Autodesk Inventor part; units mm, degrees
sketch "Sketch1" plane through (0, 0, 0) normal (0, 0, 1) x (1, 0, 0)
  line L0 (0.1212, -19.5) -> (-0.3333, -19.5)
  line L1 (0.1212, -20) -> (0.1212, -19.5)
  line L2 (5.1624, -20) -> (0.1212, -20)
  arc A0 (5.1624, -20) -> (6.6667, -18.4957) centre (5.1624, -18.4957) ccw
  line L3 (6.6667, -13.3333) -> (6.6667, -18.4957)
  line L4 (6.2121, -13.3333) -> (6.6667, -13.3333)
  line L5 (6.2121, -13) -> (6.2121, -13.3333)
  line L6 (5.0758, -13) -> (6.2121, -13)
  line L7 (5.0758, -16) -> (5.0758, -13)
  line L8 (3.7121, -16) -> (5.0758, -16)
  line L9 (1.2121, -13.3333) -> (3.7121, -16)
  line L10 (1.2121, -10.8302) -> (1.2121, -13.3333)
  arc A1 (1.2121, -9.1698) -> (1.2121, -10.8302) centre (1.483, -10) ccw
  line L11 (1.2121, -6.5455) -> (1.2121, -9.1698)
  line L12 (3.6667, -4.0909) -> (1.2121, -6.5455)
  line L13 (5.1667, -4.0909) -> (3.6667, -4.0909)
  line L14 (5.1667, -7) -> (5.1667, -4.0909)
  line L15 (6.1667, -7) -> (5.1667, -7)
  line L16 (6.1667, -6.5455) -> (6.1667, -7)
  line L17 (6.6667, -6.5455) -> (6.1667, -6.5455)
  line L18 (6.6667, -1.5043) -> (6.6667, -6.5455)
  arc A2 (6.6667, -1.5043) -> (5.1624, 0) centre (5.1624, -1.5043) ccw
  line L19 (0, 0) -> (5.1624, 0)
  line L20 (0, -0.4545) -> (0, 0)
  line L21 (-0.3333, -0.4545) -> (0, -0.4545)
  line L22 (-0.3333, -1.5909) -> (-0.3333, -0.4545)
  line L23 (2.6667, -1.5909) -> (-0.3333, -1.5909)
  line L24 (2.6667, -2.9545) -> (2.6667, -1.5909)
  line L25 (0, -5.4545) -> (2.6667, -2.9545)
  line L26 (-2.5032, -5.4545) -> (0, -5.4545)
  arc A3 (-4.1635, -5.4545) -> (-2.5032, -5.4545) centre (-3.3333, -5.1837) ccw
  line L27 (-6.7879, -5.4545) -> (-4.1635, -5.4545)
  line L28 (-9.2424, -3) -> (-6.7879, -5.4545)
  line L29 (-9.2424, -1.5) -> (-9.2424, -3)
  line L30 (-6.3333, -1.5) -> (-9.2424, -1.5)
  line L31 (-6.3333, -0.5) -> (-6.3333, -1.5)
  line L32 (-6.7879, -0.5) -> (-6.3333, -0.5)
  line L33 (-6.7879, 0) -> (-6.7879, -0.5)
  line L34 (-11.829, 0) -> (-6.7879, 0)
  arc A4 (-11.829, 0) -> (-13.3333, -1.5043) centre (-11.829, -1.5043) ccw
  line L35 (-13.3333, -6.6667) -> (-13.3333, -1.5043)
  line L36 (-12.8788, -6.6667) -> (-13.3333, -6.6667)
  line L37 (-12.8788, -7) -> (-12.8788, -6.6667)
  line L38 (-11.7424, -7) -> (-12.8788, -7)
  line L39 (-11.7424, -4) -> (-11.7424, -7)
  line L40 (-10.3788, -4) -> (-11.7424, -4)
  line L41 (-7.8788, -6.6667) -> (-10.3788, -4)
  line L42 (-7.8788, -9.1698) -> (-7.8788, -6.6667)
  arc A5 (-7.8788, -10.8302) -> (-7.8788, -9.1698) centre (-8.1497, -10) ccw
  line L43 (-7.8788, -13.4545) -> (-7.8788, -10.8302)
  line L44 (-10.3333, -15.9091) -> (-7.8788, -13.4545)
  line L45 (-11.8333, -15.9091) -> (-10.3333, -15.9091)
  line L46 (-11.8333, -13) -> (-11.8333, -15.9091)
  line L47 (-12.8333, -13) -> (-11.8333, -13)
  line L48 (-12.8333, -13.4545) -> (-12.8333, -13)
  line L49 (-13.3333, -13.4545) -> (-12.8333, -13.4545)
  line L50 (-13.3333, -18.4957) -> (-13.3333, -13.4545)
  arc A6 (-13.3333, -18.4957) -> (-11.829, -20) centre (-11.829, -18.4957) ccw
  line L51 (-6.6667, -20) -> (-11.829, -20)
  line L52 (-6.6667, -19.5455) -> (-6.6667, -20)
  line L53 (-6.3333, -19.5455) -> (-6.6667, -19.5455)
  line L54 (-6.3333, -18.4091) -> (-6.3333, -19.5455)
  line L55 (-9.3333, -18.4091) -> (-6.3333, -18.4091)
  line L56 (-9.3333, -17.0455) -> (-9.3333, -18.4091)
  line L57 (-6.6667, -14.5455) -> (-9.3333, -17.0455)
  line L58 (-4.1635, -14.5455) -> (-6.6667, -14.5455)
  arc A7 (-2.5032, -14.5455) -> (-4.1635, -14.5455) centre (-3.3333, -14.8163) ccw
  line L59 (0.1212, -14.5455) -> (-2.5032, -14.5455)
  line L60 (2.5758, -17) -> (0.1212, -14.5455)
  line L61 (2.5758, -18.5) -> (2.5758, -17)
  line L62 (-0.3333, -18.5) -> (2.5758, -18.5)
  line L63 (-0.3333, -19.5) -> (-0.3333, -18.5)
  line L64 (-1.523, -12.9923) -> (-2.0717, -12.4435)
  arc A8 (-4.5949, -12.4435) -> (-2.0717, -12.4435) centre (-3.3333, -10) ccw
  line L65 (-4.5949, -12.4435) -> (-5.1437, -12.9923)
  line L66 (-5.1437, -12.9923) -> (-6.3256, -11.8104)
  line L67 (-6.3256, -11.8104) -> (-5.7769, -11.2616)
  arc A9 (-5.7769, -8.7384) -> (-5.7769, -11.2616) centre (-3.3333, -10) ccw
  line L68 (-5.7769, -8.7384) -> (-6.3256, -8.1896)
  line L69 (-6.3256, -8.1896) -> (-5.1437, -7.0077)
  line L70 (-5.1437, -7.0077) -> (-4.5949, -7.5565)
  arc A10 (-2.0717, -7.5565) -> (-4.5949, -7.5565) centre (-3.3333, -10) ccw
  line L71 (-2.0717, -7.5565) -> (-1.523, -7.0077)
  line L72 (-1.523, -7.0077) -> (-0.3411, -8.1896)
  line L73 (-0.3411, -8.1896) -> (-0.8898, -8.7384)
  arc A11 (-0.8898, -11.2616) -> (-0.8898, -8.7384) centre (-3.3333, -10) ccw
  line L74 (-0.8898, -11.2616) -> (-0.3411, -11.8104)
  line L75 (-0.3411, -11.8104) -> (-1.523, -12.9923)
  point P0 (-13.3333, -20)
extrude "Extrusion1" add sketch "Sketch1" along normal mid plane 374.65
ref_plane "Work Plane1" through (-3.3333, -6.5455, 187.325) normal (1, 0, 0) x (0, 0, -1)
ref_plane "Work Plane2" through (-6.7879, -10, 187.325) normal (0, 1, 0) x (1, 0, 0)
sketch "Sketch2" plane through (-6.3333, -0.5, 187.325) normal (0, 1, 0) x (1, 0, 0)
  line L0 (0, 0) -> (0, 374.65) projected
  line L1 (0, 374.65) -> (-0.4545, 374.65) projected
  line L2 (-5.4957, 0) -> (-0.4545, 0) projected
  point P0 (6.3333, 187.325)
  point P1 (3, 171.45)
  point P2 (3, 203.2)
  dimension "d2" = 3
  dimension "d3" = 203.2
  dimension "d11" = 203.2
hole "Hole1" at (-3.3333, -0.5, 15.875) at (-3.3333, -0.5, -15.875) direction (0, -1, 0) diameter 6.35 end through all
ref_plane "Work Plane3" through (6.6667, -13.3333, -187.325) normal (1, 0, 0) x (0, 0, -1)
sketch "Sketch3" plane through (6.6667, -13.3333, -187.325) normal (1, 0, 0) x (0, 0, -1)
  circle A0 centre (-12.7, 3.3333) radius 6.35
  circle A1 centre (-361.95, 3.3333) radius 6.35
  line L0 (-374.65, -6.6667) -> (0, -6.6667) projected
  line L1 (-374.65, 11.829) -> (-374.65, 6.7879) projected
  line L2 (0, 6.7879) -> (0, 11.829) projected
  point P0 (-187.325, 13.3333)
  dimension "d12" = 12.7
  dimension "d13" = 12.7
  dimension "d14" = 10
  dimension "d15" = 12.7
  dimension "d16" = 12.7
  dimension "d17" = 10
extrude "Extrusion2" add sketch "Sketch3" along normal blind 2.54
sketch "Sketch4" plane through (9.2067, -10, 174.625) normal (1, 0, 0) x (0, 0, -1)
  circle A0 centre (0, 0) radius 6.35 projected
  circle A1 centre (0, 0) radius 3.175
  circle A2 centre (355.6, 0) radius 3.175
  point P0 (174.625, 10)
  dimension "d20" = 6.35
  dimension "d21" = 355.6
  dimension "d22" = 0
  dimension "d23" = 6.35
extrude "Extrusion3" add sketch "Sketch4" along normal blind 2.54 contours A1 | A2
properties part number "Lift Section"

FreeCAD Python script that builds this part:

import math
import FreeCAD as App
import Part
import Sketcher
from FreeCAD import Vector
Q = App.Units.Quantity

doc = App.newDocument("Part")
params = doc.addObject("Spreadsheet::Sheet", "Params")
for row, (alias, value) in enumerate([
    ("sketch1_width", "1 mm"),
    ("sketch1_width2", "3 mm"),
    ("sketch1_radius", "2.75 mm"),
    ("sketch1_width3", "1.5 mm"),
    ("sketch1_width4", "0.5 mm"),
    ("pad1_length", "374.65 mm"),
    ("sketch2_diameter", "6.35 mm"),
    ("hole_diameter", "6.35 mm"),
    ("sketch3_diameter", "12.7 mm"),
    ("pad2_length", "2.54 mm"),
    ("sketch4_diameter", "6.35 mm"),
    ("pad3_length", "2.54 mm"),
], start=1):
    params.set(f"A{row}", alias)
    params.set(f"B{row}", "=" + value)
    params.setAlias(f"B{row}", alias)

body = doc.addObject("PartDesign::Body", "Body")

# Sketch on XY plane
sketch1 = body.newObject("Sketcher::SketchObject", "Sketch")
sketch1.AttachmentSupport = (doc.getObject("XY_Plane"), [""])
sketch1.MapMode = "FlatFace"
sketch1.addGeometry(Part.LineSegment(Vector(-0.3333, -19.5, 0), Vector(0.1212, -19.5, 0)), False)
sketch1.addGeometry(Part.LineSegment(Vector(0.1212, -19.5, 0), Vector(0.1212, -20, 0)), False)
sketch1.addGeometry(Part.LineSegment(Vector(0.1212, -20, 0), Vector(5.1624, -20, 0)), False)
sketch1.addGeometry(Part.ArcOfCircle(Part.Circle(Vector(5.1624, -18.4957, 0), Vector(0, 0, 1), 1.5043), math.radians(-90), math.radians(0)), False)
sketch1.addGeometry(Part.LineSegment(Vector(6.6667, -18.4957, 0), Vector(6.6667, -13.3333, 0)), False)
sketch1.addGeometry(Part.LineSegment(Vector(6.6667, -13.3333, 0), Vector(6.2121, -13.3333, 0)), False)
sketch1.addGeometry(Part.LineSegment(Vector(6.2121, -13.3333, 0), Vector(6.2121, -13, 0)), False)
sketch1.addGeometry(Part.LineSegment(Vector(6.2121, -13, 0), Vector(5.0758, -13, 0)), False)
sketch1.addGeometry(Part.LineSegment(Vector(5.0758, -13, 0), Vector(5.0758, -16, 0)), False)
sketch1.addGeometry(Part.LineSegment(Vector(5.0758, -16, 0), Vector(3.7121, -16, 0)), False)
sketch1.addGeometry(Part.LineSegment(Vector(3.7121, -16, 0), Vector(1.2121, -13.3333, 0)), False)
sketch1.addGeometry(Part.LineSegment(Vector(1.2121, -13.3333, 0), Vector(1.2121, -10.8302, 0)), False)
sketch1.addGeometry(Part.ArcOfCircle(Part.Circle(Vector(1.483, -10, 0), Vector(0, 0, 1), 0.873281), math.radians(108.071863), math.radians(251.928137)), False)
sketch1.addGeometry(Part.LineSegment(Vector(1.2121, -9.1698, 0), Vector(1.2121, -6.5455, 0)), False)
sketch1.addGeometry(Part.LineSegment(Vector(1.2121, -6.5455, 0), Vector(3.6667, -4.0909, 0)), False)
sketch1.addGeometry(Part.LineSegment(Vector(3.6667, -4.0909, 0), Vector(5.1667, -4.0909, 0)), False)
sketch1.addGeometry(Part.LineSegment(Vector(5.1667, -4.0909, 0), Vector(5.1667, -7, 0)), False)
sketch1.addGeometry(Part.LineSegment(Vector(5.1667, -7, 0), Vector(6.1667, -7, 0)), False)
sketch1.addGeometry(Part.LineSegment(Vector(6.1667, -7, 0), Vector(6.1667, -6.5455, 0)), False)
sketch1.addGeometry(Part.LineSegment(Vector(6.1667, -6.5455, 0), Vector(6.6667, -6.5455, 0)), False)
sketch1.addGeometry(Part.LineSegment(Vector(6.6667, -6.5455, 0), Vector(6.6667, -1.5043, 0)), False)
sketch1.addGeometry(Part.ArcOfCircle(Part.Circle(Vector(5.1624, -1.5043, 0), Vector(0, 0, 1), 1.5043), math.radians(0), math.radians(90)), False)
sketch1.addGeometry(Part.LineSegment(Vector(5.1624, 0, 0), Vector(0, 0, 0)), False)
sketch1.addGeometry(Part.LineSegment(Vector(0, 0, 0), Vector(0, -0.4545, 0)), False)
sketch1.addGeometry(Part.LineSegment(Vector(0, -0.4545, 0), Vector(-0.3333, -0.4545, 0)), False)
sketch1.addGeometry(Part.LineSegment(Vector(-0.3333, -0.4545, 0), Vector(-0.3333, -1.5909, 0)), False)
sketch1.addGeometry(Part.LineSegment(Vector(-0.3333, -1.5909, 0), Vector(2.6667, -1.5909, 0)), False)
sketch1.addGeometry(Part.LineSegment(Vector(2.6667, -1.5909, 0), Vector(2.6667, -2.9545, 0)), False)
sketch1.addGeometry(Part.LineSegment(Vector(2.6667, -2.9545, 0), Vector(0, -5.4545, 0)), False)
sketch1.addGeometry(Part.LineSegment(Vector(0, -5.4545, 0), Vector(-2.5032, -5.4545, 0)), False)
sketch1.addGeometry(Part.ArcOfCircle(Part.Circle(Vector(-3.3333, -5.1837, 0), Vector(0, 0, 1), 0.873249), math.radians(-161.934375), math.radians(-18.06766)), False)
sketch1.addGeometry(Part.LineSegment(Vector(-4.1635, -5.4545, 0), Vector(-6.7879, -5.4545, 0)), False)
sketch1.addGeometry(Part.LineSegment(Vector(-6.7879, -5.4545, 0), Vector(-9.2424, -3, 0)), False)
sketch1.addGeometry(Part.LineSegment(Vector(-9.2424, -3, 0), Vector(-9.2424, -1.5, 0)), False)
sketch1.addGeometry(Part.LineSegment(Vector(-9.2424, -1.5, 0), Vector(-6.3333, -1.5, 0)), False)
sketch1.addGeometry(Part.LineSegment(Vector(-6.3333, -1.5, 0), Vector(-6.3333, -0.5, 0)), False)
sketch1.addGeometry(Part.LineSegment(Vector(-6.3333, -0.5, 0), Vector(-6.7879, -0.5, 0)), False)
sketch1.addGeometry(Part.LineSegment(Vector(-6.7879, -0.5, 0), Vector(-6.7879, 0, 0)), False)
sketch1.addGeometry(Part.LineSegment(Vector(-6.7879, 0, 0), Vector(-11.829, 0, 0)), False)
sketch1.addGeometry(Part.ArcOfCircle(Part.Circle(Vector(-11.829, -1.5043, 0), Vector(0, 0, 1), 1.5043), math.radians(90), math.radians(180)), False)
sketch1.addGeometry(Part.LineSegment(Vector(-13.3333, -1.5043, 0), Vector(-13.3333, -6.6667, 0)), False)
sketch1.addGeometry(Part.LineSegment(Vector(-13.3333, -6.6667, 0), Vector(-12.8788, -6.6667, 0)), False)
sketch1.addGeometry(Part.LineSegment(Vector(-12.8788, -6.6667, 0), Vector(-12.8788, -7, 0)), False)
sketch1.addGeometry(Part.LineSegment(Vector(-12.8788, -7, 0), Vector(-11.7424, -7, 0)), False)
sketch1.addGeometry(Part.LineSegment(Vector(-11.7424, -7, 0), Vector(-11.7424, -4, 0)), False)
sketch1.addGeometry(Part.LineSegment(Vector(-11.7424, -4, 0), Vector(-10.3788, -4, 0)), False)
sketch1.addGeometry(Part.LineSegment(Vector(-10.3788, -4, 0), Vector(-7.8788, -6.6667, 0)), False)
sketch1.addGeometry(Part.LineSegment(Vector(-7.8788, -6.6667, 0), Vector(-7.8788, -9.1698, 0)), False)
sketch1.addGeometry(Part.ArcOfCircle(Part.Circle(Vector(-8.1497, -10, 0), Vector(0, 0, 1), 0.873281), math.radians(-71.928137), math.radians(71.928137)), False)
sketch1.addGeometry(Part.LineSegment(Vector(-7.8788, -10.8302, 0), Vector(-7.8788, -13.4545, 0)), False)
sketch1.addGeometry(Part.LineSegment(Vector(-7.8788, -13.4545, 0), Vector(-10.3333, -15.9091, 0)), False)
sketch1.addGeometry(Part.LineSegment(Vector(-10.3333, -15.9091, 0), Vector(-11.8333, -15.9091, 0)), False)
sketch1.addGeometry(Part.LineSegment(Vector(-11.8333, -15.9091, 0), Vector(-11.8333, -13, 0)), False)
sketch1.addGeometry(Part.LineSegment(Vector(-11.8333, -13, 0), Vector(-12.8333, -13, 0)), False)
sketch1.addGeometry(Part.LineSegment(Vector(-12.8333, -13, 0), Vector(-12.8333, -13.4545, 0)), False)
sketch1.addGeometry(Part.LineSegment(Vector(-12.8333, -13.4545, 0), Vector(-13.3333, -13.4545, 0)), False)
sketch1.addGeometry(Part.LineSegment(Vector(-13.3333, -13.4545, 0), Vector(-13.3333, -18.4957, 0)), False)
sketch1.addGeometry(Part.ArcOfCircle(Part.Circle(Vector(-11.829, -18.4957, 0), Vector(0, 0, 1), 1.5043), math.radians(180), math.radians(270)), False)
sketch1.addGeometry(Part.LineSegment(Vector(-11.829, -20, 0), Vector(-6.6667, -20, 0)), False)
sketch1.addGeometry(Part.LineSegment(Vector(-6.6667, -20, 0), Vector(-6.6667, -19.5455, 0)), False)
sketch1.addGeometry(Part.LineSegment(Vector(-6.6667, -19.5455, 0), Vector(-6.3333, -19.5455, 0)), False)
sketch1.addGeometry(Part.LineSegment(Vector(-6.3333, -19.5455, 0), Vector(-6.3333, -18.4091, 0)), False)
sketch1.addGeometry(Part.LineSegment(Vector(-6.3333, -18.4091, 0), Vector(-9.3333, -18.4091, 0)), False)
sketch1.addGeometry(Part.LineSegment(Vector(-9.3333, -18.4091, 0), Vector(-9.3333, -17.0455, 0)), False)
sketch1.addGeometry(Part.LineSegment(Vector(-9.3333, -17.0455, 0), Vector(-6.6667, -14.5455, 0)), False)
sketch1.addGeometry(Part.LineSegment(Vector(-6.6667, -14.5455, 0), Vector(-4.1635, -14.5455, 0)), False)
sketch1.addGeometry(Part.ArcOfCircle(Part.Circle(Vector(-3.3333, -14.8163, 0), Vector(0, 0, 1), 0.873154), math.radians(18.06766), math.radians(161.934375)), False)
sketch1.addGeometry(Part.LineSegment(Vector(-2.5032, -14.5455, 0), Vector(0.1212, -14.5455, 0)), False)
sketch1.addGeometry(Part.LineSegment(Vector(0.1212, -14.5455, 0), Vector(2.5758, -17, 0)), False)
sketch1.addGeometry(Part.LineSegment(Vector(2.5758, -17, 0), Vector(2.5758, -18.5, 0)), False)
sketch1.addGeometry(Part.LineSegment(Vector(2.5758, -18.5, 0), Vector(-0.3333, -18.5, 0)), False)
sketch1.addGeometry(Part.LineSegment(Vector(-0.3333, -18.5, 0), Vector(-0.3333, -19.5, 0)), False)
sketch1.addGeometry(Part.LineSegment(Vector(-0.3411, -11.8104, 0), Vector(-1.523, -12.9923, 0)), False)
sketch1.addGeometry(Part.LineSegment(Vector(-1.523, -12.9923, 0), Vector(-2.0717, -12.4435, 0)), False)
sketch1.addGeometry(Part.ArcOfCircle(Part.Circle(Vector(-3.3333, -10, 0), Vector(0, 0, 1), 2.749969), math.radians(-117.307695), math.radians(-62.692305)), False)
sketch1.addGeometry(Part.LineSegment(Vector(-4.5949, -12.4435, 0), Vector(-5.1437, -12.9923, 0)), False)
sketch1.addGeometry(Part.LineSegment(Vector(-5.1437, -12.9923, 0), Vector(-6.3256, -11.8104, 0)), False)
sketch1.addGeometry(Part.LineSegment(Vector(-6.3256, -11.8104, 0), Vector(-5.7769, -11.2616, 0)), False)
sketch1.addGeometry(Part.ArcOfCircle(Part.Circle(Vector(-3.3333, -10, 0), Vector(0, 0, 1), 2.750057), math.radians(152.693261), math.radians(207.306739)), False)
sketch1.addGeometry(Part.LineSegment(Vector(-5.7769, -8.7384, 0), Vector(-6.3256, -8.1896, 0)), False)
sketch1.addGeometry(Part.LineSegment(Vector(-6.3256, -8.1896, 0), Vector(-5.1437, -7.0077, 0)), False)
sketch1.addGeometry(Part.LineSegment(Vector(-5.1437, -7.0077, 0), Vector(-4.5949, -7.5565, 0)), False)
sketch1.addGeometry(Part.ArcOfCircle(Part.Circle(Vector(-3.3333, -10, 0), Vector(0, 0, 1), 2.749969), math.radians(62.692305), math.radians(117.307695)), False)
sketch1.addGeometry(Part.LineSegment(Vector(-2.0717, -7.5565, 0), Vector(-1.523, -7.0077, 0)), False)
sketch1.addGeometry(Part.LineSegment(Vector(-1.523, -7.0077, 0), Vector(-0.3411, -8.1896, 0)), False)
sketch1.addGeometry(Part.LineSegment(Vector(-0.3411, -8.1896, 0), Vector(-0.8898, -8.7384, 0)), False)
sketch1.addGeometry(Part.ArcOfCircle(Part.Circle(Vector(-3.3333, -10, 0), Vector(0, 0, 1), 2.749969), math.radians(-27.307695), math.radians(27.307695)), False)
sketch1.addGeometry(Part.LineSegment(Vector(-0.8898, -11.2616, 0), Vector(-0.3411, -11.8104, 0)), False)
sketch1.addConstraint(Sketcher.Constraint("Coincident", 0, 2, 1, 1))
sketch1.addConstraint(Sketcher.Constraint("Coincident", 1, 2, 2, 1))
sketch1.addConstraint(Sketcher.Constraint("Tangent", 2, 2, 3, 1))
sketch1.addConstraint(Sketcher.Constraint("Tangent", 3, 2, 4, 1))
sketch1.addConstraint(Sketcher.Constraint("Coincident", 4, 2, 5, 1))
sketch1.addConstraint(Sketcher.Constraint("Coincident", 5, 2, 6, 1))
sketch1.addConstraint(Sketcher.Constraint("Coincident", 6, 2, 7, 1))
sketch1.addConstraint(Sketcher.Constraint("Coincident", 7, 2, 8, 1))
sketch1.addConstraint(Sketcher.Constraint("Coincident", 8, 2, 9, 1))
sketch1.addConstraint(Sketcher.Constraint("Coincident", 9, 2, 10, 1))
sketch1.addConstraint(Sketcher.Constraint("Coincident", 10, 2, 11, 1))
sketch1.addConstraint(Sketcher.Constraint("Coincident", 11, 2, 12, 2))
sketch1.addConstraint(Sketcher.Constraint("Coincident", 12, 1, 13, 1))
sketch1.addConstraint(Sketcher.Constraint("Coincident", 13, 2, 14, 1))
sketch1.addConstraint(Sketcher.Constraint("Coincident", 14, 2, 15, 1))
sketch1.addConstraint(Sketcher.Constraint("Coincident", 15, 2, 16, 1))
sketch1.addConstraint(Sketcher.Constraint("Coincident", 16, 2, 17, 1))
sketch1.addConstraint(Sketcher.Constraint("Coincident", 17, 2, 18, 1))
sketch1.addConstraint(Sketcher.Constraint("Coincident", 18, 2, 19, 1))
sketch1.addConstraint(Sketcher.Constraint("Coincident", 19, 2, 20, 1))
sketch1.addConstraint(Sketcher.Constraint("Tangent", 20, 2, 21, 1))
sketch1.addConstraint(Sketcher.Constraint("Tangent", 21, 2, 22, 1))
sketch1.addConstraint(Sketcher.Constraint("Coincident", 22, 2, 23, 1))
sketch1.addConstraint(Sketcher.Constraint("Coincident", 23, 2, 24, 1))
sketch1.addConstraint(Sketcher.Constraint("Coincident", 24, 2, 25, 1))
sketch1.addConstraint(Sketcher.Constraint("Coincident", 25, 2, 26, 1))
sketch1.addConstraint(Sketcher.Constraint("Coincident", 26, 2, 27, 1))
sketch1.addConstraint(Sketcher.Constraint("Coincident", 27, 2, 28, 1))
sketch1.addConstraint(Sketcher.Constraint("Coincident", 28, 2, 29, 1))
sketch1.addConstraint(Sketcher.Constraint("Coincident", 29, 2, 30, 2))
sketch1.addConstraint(Sketcher.Constraint("Coincident", 30, 1, 31, 1))
sketch1.addConstraint(Sketcher.Constraint("Coincident", 31, 2, 32, 1))
sketch1.addConstraint(Sketcher.Constraint("Coincident", 32, 2, 33, 1))
sketch1.addConstraint(Sketcher.Constraint("Coincident", 33, 2, 34, 1))
sketch1.addConstraint(Sketcher.Constraint("Coincident", 34, 2, 35, 1))
sketch1.addConstraint(Sketcher.Constraint("Coincident", 35, 2, 36, 1))
sketch1.addConstraint(Sketcher.Constraint("Coincident", 36, 2, 37, 1))
sketch1.addConstraint(Sketcher.Constraint("Coincident", 37, 2, 38, 1))
sketch1.addConstraint(Sketcher.Constraint("Tangent", 38, 2, 39, 1))
sketch1.addConstraint(Sketcher.Constraint("Tangent", 39, 2, 40, 1))
sketch1.addConstraint(Sketcher.Constraint("Coincident", 40, 2, 41, 1))
sketch1.addConstraint(Sketcher.Constraint("Coincident", 41, 2, 42, 1))
sketch1.addConstraint(Sketcher.Constraint("Coincident", 42, 2, 43, 1))
sketch1.addConstraint(Sketcher.Constraint("Coincident", 43, 2, 44, 1))
sketch1.addConstraint(Sketcher.Constraint("Coincident", 44, 2, 45, 1))
sketch1.addConstraint(Sketcher.Constraint("Coincident", 45, 2, 46, 1))
sketch1.addConstraint(Sketcher.Constraint("Coincident", 46, 2, 47, 1))
sketch1.addConstraint(Sketcher.Constraint("Coincident", 47, 2, 48, 2))
sketch1.addConstraint(Sketcher.Constraint("Coincident", 48, 1, 49, 1))
sketch1.addConstraint(Sketcher.Constraint("Coincident", 49, 2, 50, 1))
sketch1.addConstraint(Sketcher.Constraint("Coincident", 50, 2, 51, 1))
sketch1.addConstraint(Sketcher.Constraint("Coincident", 51, 2, 52, 1))
sketch1.addConstraint(Sketcher.Constraint("Coincident", 52, 2, 53, 1))
sketch1.addConstraint(Sketcher.Constraint("Coincident", 53, 2, 54, 1))
sketch1.addConstraint(Sketcher.Constraint("Coincident", 54, 2, 55, 1))
sketch1.addConstraint(Sketcher.Constraint("Coincident", 55, 2, 56, 1))
sketch1.addConstraint(Sketcher.Constraint("Tangent", 56, 2, 57, 1))
sketch1.addConstraint(Sketcher.Constraint("Tangent", 57, 2, 58, 1))
sketch1.addConstraint(Sketcher.Constraint("Coincident", 58, 2, 59, 1))
sketch1.addConstraint(Sketcher.Constraint("Coincident", 59, 2, 60, 1))
sketch1.addConstraint(Sketcher.Constraint("Coincident", 60, 2, 61, 1))
sketch1.addConstraint(Sketcher.Constraint("Coincident", 61, 2, 62, 1))
sketch1.addConstraint(Sketcher.Constraint("Coincident", 62, 2, 63, 1))
sketch1.addConstraint(Sketcher.Constraint("Coincident", 63, 2, 64, 1))
sketch1.addConstraint(Sketcher.Constraint("Coincident", 64, 2, 65, 1))
sketch1.addConstraint(Sketcher.Constraint("Coincident", 65, 2, 66, 2))
sketch1.addConstraint(Sketcher.Constraint("Coincident", 66, 1, 67, 1))
sketch1.addConstraint(Sketcher.Constraint("Coincident", 67, 2, 68, 1))
sketch1.addConstraint(Sketcher.Constraint("Coincident", 68, 2, 69, 1))
sketch1.addConstraint(Sketcher.Constraint("Coincident", 69, 2, 70, 1))
sketch1.addConstraint(Sketcher.Constraint("Coincident", 70, 2, 71, 1))
sketch1.addConstraint(Sketcher.Constraint("Coincident", 71, 2, 0, 1))
sketch1.addConstraint(Sketcher.Constraint("Coincident", 72, 2, 73, 1))
sketch1.addConstraint(Sketcher.Constraint("Coincident", 73, 2, 74, 2))
sketch1.addConstraint(Sketcher.Constraint("Coincident", 74, 1, 75, 1))
sketch1.addConstraint(Sketcher.Constraint("Coincident", 75, 2, 76, 1))
sketch1.addConstraint(Sketcher.Constraint("Coincident", 76, 2, 77, 1))
sketch1.addConstraint(Sketcher.Constraint("Coincident", 77, 2, 78, 2))
sketch1.addConstraint(Sketcher.Constraint("Coincident", 78, 1, 79, 1))
sketch1.addConstraint(Sketcher.Constraint("Coincident", 79, 2, 80, 1))
sketch1.addConstraint(Sketcher.Constraint("Coincident", 80, 2, 81, 1))
sketch1.addConstraint(Sketcher.Constraint("Coincident", 81, 2, 82, 2))
sketch1.addConstraint(Sketcher.Constraint("Coincident", 82, 1, 83, 1))
sketch1.addConstraint(Sketcher.Constraint("Coincident", 83, 2, 84, 1))
sketch1.addConstraint(Sketcher.Constraint("Coincident", 84, 2, 85, 1))
sketch1.addConstraint(Sketcher.Constraint("Coincident", 85, 2, 86, 2))
sketch1.addConstraint(Sketcher.Constraint("Coincident", 86, 1, 87, 1))
sketch1.addConstraint(Sketcher.Constraint("Coincident", 87, 2, 72, 1))
sketch1.addConstraint(Sketcher.Constraint("Horizontal", 0))
sketch1.addConstraint(Sketcher.Constraint("Vertical", 1))
sketch1.addConstraint(Sketcher.Constraint("Horizontal", 2))
sketch1.addConstraint(Sketcher.Constraint("Vertical", 4))
sketch1.addConstraint(Sketcher.Constraint("Horizontal", 5))
sketch1.addConstraint(Sketcher.Constraint("Vertical", 6))
sketch1.addConstraint(Sketcher.Constraint("Horizontal", 7))
sketch1.addConstraint(Sketcher.Constraint("Vertical", 8))
sketch1.addConstraint(Sketcher.Constraint("Horizontal", 9))
sketch1.addConstraint(Sketcher.Constraint("Vertical", 11))
sketch1.addConstraint(Sketcher.Constraint("Vertical", 13))
sketch1.addConstraint(Sketcher.Constraint("Horizontal", 15))
sketch1.addConstraint(Sketcher.Constraint("Vertical", 16))
sketch1.addConstraint(Sketcher.Constraint("Horizontal", 17))
sketch1.addConstraint(Sketcher.Constraint("Vertical", 18))
sketch1.addConstraint(Sketcher.Constraint("Horizontal", 19))
sketch1.addConstraint(Sketcher.Constraint("Vertical", 20))
sketch1.addConstraint(Sketcher.Constraint("Horizontal", 22))
sketch1.addConstraint(Sketcher.Constraint("Vertical", 23))
sketch1.addConstraint(Sketcher.Constraint("Horizontal", 24))
sketch1.addConstraint(Sketcher.Constraint("Vertical", 25))
sketch1.addConstraint(Sketcher.Constraint("Horizontal", 26))
sketch1.addConstraint(Sketcher.Constraint("Vertical", 27))
sketch1.addConstraint(Sketcher.Constraint("Horizontal", 29))
sketch1.addConstraint(Sketcher.Constraint("Horizontal", 31))
sketch1.addConstraint(Sketcher.Constraint("Vertical", 33))
sketch1.addConstraint(Sketcher.Constraint("Horizontal", 34))
sketch1.addConstraint(Sketcher.Constraint("Vertical", 35))
sketch1.addConstraint(Sketcher.Constraint("Horizontal", 36))
sketch1.addConstraint(Sketcher.Constraint("Vertical", 37))
sketch1.addConstraint(Sketcher.Constraint("Horizontal", 38))
sketch1.addConstraint(Sketcher.Constraint("Vertical", 40))
sketch1.addConstraint(Sketcher.Constraint("Horizontal", 41))
sketch1.addConstraint(Sketcher.Constraint("Vertical", 42))
sketch1.addConstraint(Sketcher.Constraint("Horizontal", 43))
sketch1.addConstraint(Sketcher.Constraint("Vertical", 44))
sketch1.addConstraint(Sketcher.Constraint("Horizontal", 45))
sketch1.addConstraint(Sketcher.Constraint("Vertical", 47))
sketch1.addConstraint(Sketcher.Constraint("Vertical", 49))
sketch1.addConstraint(Sketcher.Constraint("Horizontal", 51))
sketch1.addConstraint(Sketcher.Constraint("Vertical", 52))
sketch1.addConstraint(Sketcher.Constraint("Horizontal", 53))
sketch1.addConstraint(Sketcher.Constraint("Vertical", 54))
sketch1.addConstraint(Sketcher.Constraint("Horizontal", 55))
sketch1.addConstraint(Sketcher.Constraint("Vertical", 56))
sketch1.addConstraint(Sketcher.Constraint("Horizontal", 58))
sketch1.addConstraint(Sketcher.Constraint("Vertical", 59))
sketch1.addConstraint(Sketcher.Constraint("Horizontal", 60))
sketch1.addConstraint(Sketcher.Constraint("Vertical", 61))
sketch1.addConstraint(Sketcher.Constraint("Horizontal", 62))
sketch1.addConstraint(Sketcher.Constraint("Vertical", 63))
sketch1.addConstraint(Sketcher.Constraint("Horizontal", 65))
sketch1.addConstraint(Sketcher.Constraint("Horizontal", 67))
sketch1.addConstraint(Sketcher.Constraint("Vertical", 69))
sketch1.addConstraint(Sketcher.Constraint("Horizontal", 70))
sketch1.addConstraint(Sketcher.Constraint("Vertical", 71))
sketch1.addConstraint(Sketcher.Constraint("Coincident", 22, 2, -1, 1))
sketch1.addConstraint(Sketcher.Constraint("Coincident", 78, 3, 74, 3))
sketch1.addConstraint(Sketcher.Constraint("Coincident", 82, 3, 74, 3))
sketch1.addConstraint(Sketcher.Constraint("Coincident", 86, 3, 74, 3))
sketch1.addConstraint(Sketcher.Constraint("Equal", 3, 21))
sketch1.addConstraint(Sketcher.Constraint("Equal", 12, 30))
sketch1.addConstraint(Sketcher.Constraint("Equal", 21, 39))
sketch1.addConstraint(Sketcher.Constraint("Equal", 30, 48))
sketch1.addConstraint(Sketcher.Constraint("Equal", 39, 57))
sketch1.addConstraint(Sketcher.Constraint("Equal", 48, 66))
sketch1.addConstraint(Sketcher.Constraint("Equal", 74, 78))
sketch1.addConstraint(Sketcher.Constraint("Equal", 78, 82))
sketch1.addConstraint(Sketcher.Constraint("Equal", 82, 86))
sketch1.addConstraint(Sketcher.Constraint("PointOnObject", 28, 2, -2))
sketch1.addConstraint(Sketcher.Constraint("PointOnObject", 37, 2, -1))
sketch1.addConstraint(Sketcher.Constraint("Perpendicular", 10, 28))
sketch1.addConstraint(Sketcher.Constraint("Perpendicular", 14, 32))
sketch1.addConstraint(Sketcher.Constraint("Perpendicular", 28, 46))
sketch1.addConstraint(Sketcher.Constraint("Perpendicular", 32, 50))
sketch1.addConstraint(Sketcher.Constraint("Perpendicular", 46, 64))
sketch1.addConstraint(Sketcher.Constraint("Perpendicular", 50, 68))
sketch1.addConstraint(Sketcher.Constraint("Perpendicular", 68, 72))
sketch1.addConstraint(Sketcher.Constraint("Perpendicular", 72, 73))
sketch1.addConstraint(Sketcher.Constraint("Perpendicular", 73, 75))
sketch1.addConstraint(Sketcher.Constraint("Perpendicular", 75, 76))
sketch1.addConstraint(Sketcher.Constraint("Perpendicular", 76, 77))
sketch1.addConstraint(Sketcher.Constraint("Perpendicular", 77, 79))
sketch1.addConstraint(Sketcher.Constraint("Perpendicular", 79, 80))
sketch1.addConstraint(Sketcher.Constraint("Perpendicular", 80, 81))
sketch1.addConstraint(Sketcher.Constraint("Perpendicular", 81, 83))
sketch1.addConstraint(Sketcher.Constraint("Perpendicular", 83, 84))
sketch1.addConstraint(Sketcher.Constraint("Perpendicular", 84, 85))
sketch1.addConstraint(Sketcher.Constraint("Perpendicular", 85, 87))
sketch1.addConstraint(Sketcher.Constraint("Horizontal", 12, 3, 48, 3))
sketch1.addConstraint(Sketcher.Constraint("Horizontal", 3, 3, 57, 3))
sketch1.addConstraint(Sketcher.Constraint("Horizontal", 48, 3, 74, 3))
sketch1.addConstraint(Sketcher.Constraint("Horizontal", 5, 2, 10, 2))
sketch1.addConstraint(Sketcher.Constraint("Horizontal", 13, 2, 18, 2))
sketch1.addConstraint(Sketcher.Constraint("Horizontal", 29, 2, 30, 1))
sketch1.addConstraint(Sketcher.Constraint("Horizontal", 17, 2, 42, 2))
sketch1.addConstraint(Sketcher.Constraint("Horizontal", 41, 2, 46, 2))
sketch1.addConstraint(Sketcher.Constraint("Horizontal", 12, 1, 47, 2))
sketch1.addConstraint(Sketcher.Constraint("Horizontal", 11, 2, 48, 1))
sketch1.addConstraint(Sketcher.Constraint("Horizontal", 7, 2, 52, 2))
sketch1.addConstraint(Sketcher.Constraint("Horizontal", 49, 2, 54, 2))
sketch1.addConstraint(Sketcher.Constraint("Horizontal", 65, 2, 66, 1))
sketch1.addConstraint(Sketcher.Constraint("Horizontal", 73, 2, 74, 1))
sketch1.addConstraint(Sketcher.Constraint("Horizontal", 72, 2, 75, 2))
sketch1.addConstraint(Sketcher.Constraint("Horizontal", 81, 2, 82, 1))
sketch1.addConstraint(Sketcher.Constraint("Horizontal", 80, 2, 83, 2))
sketch1.addConstraint(Sketcher.Constraint("Horizontal", 79, 2, 84, 2))
sketch1.addConstraint(Sketcher.Constraint("Horizontal", 78, 1, 85, 2))
sketch1.addConstraint(Sketcher.Constraint("Horizontal", 77, 2, 86, 1))
sketch1.addConstraint(Sketcher.Constraint("Vertical", 3, 3, 21, 3))
sketch1.addConstraint(Sketcher.Constraint("Vertical", 39, 3, 57, 3))
sketch1.addConstraint(Sketcher.Constraint("Vertical", 30, 3, 66, 3))
sketch1.addConstraint(Sketcher.Constraint("Vertical", 66, 3, 74, 3))
sketch1.addConstraint(Sketcher.Constraint("Vertical", 11, 2, 12, 1))
sketch1.addConstraint(Sketcher.Constraint("Vertical", 31, 2, 36, 2))
sketch1.addConstraint(Sketcher.Constraint("Vertical", 35, 2, 60, 2))
sketch1.addConstraint(Sketcher.Constraint("Vertical", 59, 2, 64, 2))
sketch1.addConstraint(Sketcher.Constraint("Vertical", 30, 1, 65, 2))
sketch1.addConstraint(Sketcher.Constraint("Vertical", 1, 2, 67, 2))
sketch1.addConstraint(Sketcher.Constraint("Vertical", 25, 2, 70, 2))
sketch1.addConstraint(Sketcher.Constraint("Vertical", 77, 2, 78, 1))
sketch1.addConstraint(Sketcher.Constraint("Vertical", 76, 2, 79, 2))
sketch1.addConstraint(Sketcher.Constraint("Vertical", 75, 2, 80, 2))
sketch1.addConstraint(Sketcher.Constraint("Equal", 0, 5))
sketch1.addConstraint(Sketcher.Constraint("Equal", 5, 36))
sketch1.addConstraint(Sketcher.Constraint("Equal", 2, 38))
sketch1.addConstraint(Sketcher.Constraint("Equal", 36, 41))
sketch1.addConstraint(Sketcher.Constraint("Equal", 7, 43))
sketch1.addConstraint(Sketcher.Constraint("Equal", 9, 45))
sketch1.addConstraint(Sketcher.Constraint("Equal", 15, 51))
sketch1.addConstraint(Sketcher.Constraint("Equal", 17, 53))
sketch1.addConstraint(Sketcher.Constraint("Equal", 19, 55))
sketch1.addConstraint(Sketcher.Constraint("Equal", 22, 58))
sketch1.addConstraint(Sketcher.Constraint("Equal", 26, 62))
sketch1.addConstraint(Sketcher.Constraint("Equal", 29, 65))
sketch1.addConstraint(Sketcher.Constraint("Equal", 34, 70))
sketch1.addConstraint(Sketcher.Constraint("Equal", 55, 1))
sketch1.addConstraint(Sketcher.Constraint("Equal", 58, 4))
sketch1.addConstraint(Sketcher.Constraint("Equal", 60, 6))
sketch1.addConstraint(Sketcher.Constraint("Equal", 62, 8))
sketch1.addConstraint(Sketcher.Constraint("Equal", 65, 11))
sketch1.addConstraint(Sketcher.Constraint("Equal", 67, 13))
sketch1.addConstraint(Sketcher.Constraint("Equal", 70, 16))
sketch1.addConstraint(Sketcher.Constraint("Equal", 41, 18))
sketch1.addConstraint(Sketcher.Constraint("Equal", 38, 20))
sketch1.addConstraint(Sketcher.Constraint("Equal", 18, 23))
sketch1.addConstraint(Sketcher.Constraint("Equal", 43, 25))
sketch1.addConstraint(Sketcher.Constraint("Equal", 45, 27))
sketch1.addConstraint(Sketcher.Constraint("Equal", 51, 33))
sketch1.addConstraint(Sketcher.Constraint("Equal", 53, 35))
sketch1.addConstraint(Sketcher.Constraint("Equal", 4, 40))
sketch1.addConstraint(Sketcher.Constraint("Equal", 8, 44))
sketch1.addConstraint(Sketcher.Constraint("Equal", 13, 49))
sketch1.addConstraint(Sketcher.Constraint("Equal", 54, 59))
sketch1.addConstraint(Sketcher.Constraint("Equal", 25, 61))
sketch1.addConstraint(Sketcher.Constraint("Equal", 27, 63))
sketch1.addConstraint(Sketcher.Constraint("Equal", 33, 69))
sketch1.addConstraint(Sketcher.Constraint("Equal", 75, 77))
sketch1.addConstraint(Sketcher.Constraint("DistanceX", 17, 1, 17, 2, Q("1 mm")))
sketch1.addConstraint(Sketcher.Constraint("DistanceX", 26, 1, 26, 2, Q("3 mm")))
sketch1.addConstraint(Sketcher.Constraint("Radius", 74, Q("2.75 mm")))
sketch1.addConstraint(Sketcher.Constraint("DistanceX", 15, 1, 15, 2, Q("1.5 mm")))
sketch1.addConstraint(Sketcher.Constraint("DistanceX", 19, 1, 19, 2, Q("0.5 mm")))
sketch1.addConstraint(Sketcher.Constraint("DistanceY", 12, 3, -1, 1, Q("10 mm")))
sketch1.addConstraint(Sketcher.Constraint("DistanceY", 6, 2, -1, 1, Q("13 mm")))
sketch1.addConstraint(Sketcher.Constraint("Radius", 3, Q("1.5043 mm")))
sketch1.addConstraint(Sketcher.Constraint("Radius", 12, Q("0.8733 mm")))
sketch1.addConstraint(Sketcher.Constraint("DistanceX", 34, 1, 34, 2, Q("2.909 mm")))
sketch1.addConstraint(Sketcher.Constraint("DistanceX", 38, 2, 38, 1, Q("5.041 mm")))
sketch1.addConstraint(Sketcher.Constraint("DistanceY", 11, 1, 11, 2, Q("2.503 mm")))
sketch1.addConstraint(Sketcher.Constraint("Distance", 73, Q("0.776 mm")))
sketch1.addConstraint(Sketcher.Constraint("DistanceX", 7, 2, 7, 1, Q("1.1363 mm")))
sketch1.addConstraint(Sketcher.Constraint("DistanceX", 9, 2, 9, 1, Q("1.3637 mm")))
sketch1.addConstraint(Sketcher.Constraint("DistanceX", 22, 2, 22, 1, Q("5.1624 mm")))
sketch1.addConstraint(Sketcher.Constraint("DistanceX", 39, 3, -1, 1, Q("11.829 mm")))
sketch1.addConstraint(Sketcher.Constraint("DistanceX", 72, 2, -1, 1, Q("1.523 mm")))
sketch1.setExpression("Constraints[246]", "Params.sketch1_width")
sketch1.setExpression("Constraints[247]", "Params.sketch1_width2")
sketch1.setExpression("Constraints[248]", "Params.sketch1_radius")
sketch1.setExpression("Constraints[249]", "Params.sketch1_width3")
sketch1.setExpression("Constraints[250]", "Params.sketch1_width4")
pad1 = body.newObject("PartDesign::Pad", "Pad")
pad1.Profile = sketch1
pad1.setExpression("Length", "Params.pad1_length")
pad1.Midplane = True

# Sketch on XZ plane
sketch2 = body.newObject("Sketcher::SketchObject", "Sketch001")
sketch2.AttachmentSupport = (doc.getObject("XZ_Plane"), [""])
sketch2.MapMode = "FlatFace"
sketch2.AttachmentOffset = App.Placement(Vector(0, 0, 0.5), App.Rotation())
sketch2.addGeometry(Part.Circle(Vector(-3.3333, 15.875, 0), Vector(0, 0, 1), 3.175), False)
sketch2.addGeometry(Part.Circle(Vector(-3.3333, -15.875, 0), Vector(0, 0, 1), 3.175), False)
sketch2.addConstraint(Sketcher.Constraint("Equal", 0, 1))
sketch2.addConstraint(Sketcher.Constraint("Symmetric", 0, 3, 1, 3, -1))
sketch2.addConstraint(Sketcher.Constraint("Diameter", 0, Q("6.35 mm")))
sketch2.addConstraint(Sketcher.Constraint("DistanceY", 1, 3, 0, 3, Q("31.75 mm")))
sketch2.addConstraint(Sketcher.Constraint("DistanceX", 0, 3, -1, 1, Q("3.3333 mm")))
sketch2.setExpression("Constraints[2]", "Params.sketch2_diameter")
doc.recompute()
hole = body.newObject("PartDesign::Hole", "Hole")
hole.Profile = sketch2
hole.ThreadType = "None"
hole.setExpression("Diameter", "Params.hole_diameter")
hole.DepthType = "ThroughAll"
hole.Reversed = True

# Sketch on YZ plane
sketch3 = body.newObject("Sketcher::SketchObject", "Sketch002")
sketch3.AttachmentSupport = (doc.getObject("YZ_Plane"), [""])
sketch3.MapMode = "FlatFace"
sketch3.AttachmentOffset = App.Placement(Vector(0, 0, 6.6667), App.Rotation())
sketch3.addGeometry(Part.Circle(Vector(-10, -174.625, 0), Vector(0, 0, 1), 6.35), False)
sketch3.addGeometry(Part.Circle(Vector(-10, 174.625, 0), Vector(0, 0, 1), 6.35), False)
sketch3.addConstraint(Sketcher.Constraint("Equal", 0, 1))
sketch3.addConstraint(Sketcher.Constraint("Symmetric", 0, 3, 1, 3, -1))
sketch3.addConstraint(Sketcher.Constraint("Diameter", 0, Q("12.7 mm")))
sketch3.addConstraint(Sketcher.Constraint("DistanceX", 0, 3, -1, 1, Q("10 mm")))
sketch3.addConstraint(Sketcher.Constraint("DistanceY", 0, 3, 1, 3, Q("349.25 mm")))
sketch3.setExpression("Constraints[2]", "Params.sketch3_diameter")
pad2 = body.newObject("PartDesign::Pad", "Pad001")
pad2.Profile = sketch3
pad2.setExpression("Length", "Params.pad2_length")

# Sketch on YZ plane
sketch4 = body.newObject("Sketcher::SketchObject", "Sketch003")
sketch4.AttachmentSupport = (doc.getObject("YZ_Plane"), [""])
sketch4.MapMode = "FlatFace"
sketch4.AttachmentOffset = App.Placement(Vector(0, 0, 9.2067), App.Rotation())
sketch4.addGeometry(Part.Circle(Vector(-10, 174.625, 0), Vector(0, 0, 1), 3.175), False)
sketch4.addGeometry(Part.Circle(Vector(-10, -180.975, 0), Vector(0, 0, 1), 3.175), False)
sketch4.addConstraint(Sketcher.Constraint("Equal", 0, 1))
sketch4.addConstraint(Sketcher.Constraint("Vertical", 0, 3, 1, 3))
sketch4.addConstraint(Sketcher.Constraint("Diameter", 0, Q("6.35 mm")))
sketch4.addConstraint(Sketcher.Constraint("DistanceY", 1, 3, 0, 3, Q("355.6 mm")))
sketch4.addConstraint(Sketcher.Constraint("DistanceX", 0, 3, -1, 1, Q("10 mm")))
sketch4.addConstraint(Sketcher.Constraint("DistanceY", -1, 1, 0, 3, Q("174.625 mm")))
sketch4.setExpression("Constraints[2]", "Params.sketch4_diameter")
pad3 = body.newObject("PartDesign::Pad", "Pad002")
pad3.Profile = sketch4
pad3.setExpression("Length", "Params.pad3_length")

doc.recompute()
